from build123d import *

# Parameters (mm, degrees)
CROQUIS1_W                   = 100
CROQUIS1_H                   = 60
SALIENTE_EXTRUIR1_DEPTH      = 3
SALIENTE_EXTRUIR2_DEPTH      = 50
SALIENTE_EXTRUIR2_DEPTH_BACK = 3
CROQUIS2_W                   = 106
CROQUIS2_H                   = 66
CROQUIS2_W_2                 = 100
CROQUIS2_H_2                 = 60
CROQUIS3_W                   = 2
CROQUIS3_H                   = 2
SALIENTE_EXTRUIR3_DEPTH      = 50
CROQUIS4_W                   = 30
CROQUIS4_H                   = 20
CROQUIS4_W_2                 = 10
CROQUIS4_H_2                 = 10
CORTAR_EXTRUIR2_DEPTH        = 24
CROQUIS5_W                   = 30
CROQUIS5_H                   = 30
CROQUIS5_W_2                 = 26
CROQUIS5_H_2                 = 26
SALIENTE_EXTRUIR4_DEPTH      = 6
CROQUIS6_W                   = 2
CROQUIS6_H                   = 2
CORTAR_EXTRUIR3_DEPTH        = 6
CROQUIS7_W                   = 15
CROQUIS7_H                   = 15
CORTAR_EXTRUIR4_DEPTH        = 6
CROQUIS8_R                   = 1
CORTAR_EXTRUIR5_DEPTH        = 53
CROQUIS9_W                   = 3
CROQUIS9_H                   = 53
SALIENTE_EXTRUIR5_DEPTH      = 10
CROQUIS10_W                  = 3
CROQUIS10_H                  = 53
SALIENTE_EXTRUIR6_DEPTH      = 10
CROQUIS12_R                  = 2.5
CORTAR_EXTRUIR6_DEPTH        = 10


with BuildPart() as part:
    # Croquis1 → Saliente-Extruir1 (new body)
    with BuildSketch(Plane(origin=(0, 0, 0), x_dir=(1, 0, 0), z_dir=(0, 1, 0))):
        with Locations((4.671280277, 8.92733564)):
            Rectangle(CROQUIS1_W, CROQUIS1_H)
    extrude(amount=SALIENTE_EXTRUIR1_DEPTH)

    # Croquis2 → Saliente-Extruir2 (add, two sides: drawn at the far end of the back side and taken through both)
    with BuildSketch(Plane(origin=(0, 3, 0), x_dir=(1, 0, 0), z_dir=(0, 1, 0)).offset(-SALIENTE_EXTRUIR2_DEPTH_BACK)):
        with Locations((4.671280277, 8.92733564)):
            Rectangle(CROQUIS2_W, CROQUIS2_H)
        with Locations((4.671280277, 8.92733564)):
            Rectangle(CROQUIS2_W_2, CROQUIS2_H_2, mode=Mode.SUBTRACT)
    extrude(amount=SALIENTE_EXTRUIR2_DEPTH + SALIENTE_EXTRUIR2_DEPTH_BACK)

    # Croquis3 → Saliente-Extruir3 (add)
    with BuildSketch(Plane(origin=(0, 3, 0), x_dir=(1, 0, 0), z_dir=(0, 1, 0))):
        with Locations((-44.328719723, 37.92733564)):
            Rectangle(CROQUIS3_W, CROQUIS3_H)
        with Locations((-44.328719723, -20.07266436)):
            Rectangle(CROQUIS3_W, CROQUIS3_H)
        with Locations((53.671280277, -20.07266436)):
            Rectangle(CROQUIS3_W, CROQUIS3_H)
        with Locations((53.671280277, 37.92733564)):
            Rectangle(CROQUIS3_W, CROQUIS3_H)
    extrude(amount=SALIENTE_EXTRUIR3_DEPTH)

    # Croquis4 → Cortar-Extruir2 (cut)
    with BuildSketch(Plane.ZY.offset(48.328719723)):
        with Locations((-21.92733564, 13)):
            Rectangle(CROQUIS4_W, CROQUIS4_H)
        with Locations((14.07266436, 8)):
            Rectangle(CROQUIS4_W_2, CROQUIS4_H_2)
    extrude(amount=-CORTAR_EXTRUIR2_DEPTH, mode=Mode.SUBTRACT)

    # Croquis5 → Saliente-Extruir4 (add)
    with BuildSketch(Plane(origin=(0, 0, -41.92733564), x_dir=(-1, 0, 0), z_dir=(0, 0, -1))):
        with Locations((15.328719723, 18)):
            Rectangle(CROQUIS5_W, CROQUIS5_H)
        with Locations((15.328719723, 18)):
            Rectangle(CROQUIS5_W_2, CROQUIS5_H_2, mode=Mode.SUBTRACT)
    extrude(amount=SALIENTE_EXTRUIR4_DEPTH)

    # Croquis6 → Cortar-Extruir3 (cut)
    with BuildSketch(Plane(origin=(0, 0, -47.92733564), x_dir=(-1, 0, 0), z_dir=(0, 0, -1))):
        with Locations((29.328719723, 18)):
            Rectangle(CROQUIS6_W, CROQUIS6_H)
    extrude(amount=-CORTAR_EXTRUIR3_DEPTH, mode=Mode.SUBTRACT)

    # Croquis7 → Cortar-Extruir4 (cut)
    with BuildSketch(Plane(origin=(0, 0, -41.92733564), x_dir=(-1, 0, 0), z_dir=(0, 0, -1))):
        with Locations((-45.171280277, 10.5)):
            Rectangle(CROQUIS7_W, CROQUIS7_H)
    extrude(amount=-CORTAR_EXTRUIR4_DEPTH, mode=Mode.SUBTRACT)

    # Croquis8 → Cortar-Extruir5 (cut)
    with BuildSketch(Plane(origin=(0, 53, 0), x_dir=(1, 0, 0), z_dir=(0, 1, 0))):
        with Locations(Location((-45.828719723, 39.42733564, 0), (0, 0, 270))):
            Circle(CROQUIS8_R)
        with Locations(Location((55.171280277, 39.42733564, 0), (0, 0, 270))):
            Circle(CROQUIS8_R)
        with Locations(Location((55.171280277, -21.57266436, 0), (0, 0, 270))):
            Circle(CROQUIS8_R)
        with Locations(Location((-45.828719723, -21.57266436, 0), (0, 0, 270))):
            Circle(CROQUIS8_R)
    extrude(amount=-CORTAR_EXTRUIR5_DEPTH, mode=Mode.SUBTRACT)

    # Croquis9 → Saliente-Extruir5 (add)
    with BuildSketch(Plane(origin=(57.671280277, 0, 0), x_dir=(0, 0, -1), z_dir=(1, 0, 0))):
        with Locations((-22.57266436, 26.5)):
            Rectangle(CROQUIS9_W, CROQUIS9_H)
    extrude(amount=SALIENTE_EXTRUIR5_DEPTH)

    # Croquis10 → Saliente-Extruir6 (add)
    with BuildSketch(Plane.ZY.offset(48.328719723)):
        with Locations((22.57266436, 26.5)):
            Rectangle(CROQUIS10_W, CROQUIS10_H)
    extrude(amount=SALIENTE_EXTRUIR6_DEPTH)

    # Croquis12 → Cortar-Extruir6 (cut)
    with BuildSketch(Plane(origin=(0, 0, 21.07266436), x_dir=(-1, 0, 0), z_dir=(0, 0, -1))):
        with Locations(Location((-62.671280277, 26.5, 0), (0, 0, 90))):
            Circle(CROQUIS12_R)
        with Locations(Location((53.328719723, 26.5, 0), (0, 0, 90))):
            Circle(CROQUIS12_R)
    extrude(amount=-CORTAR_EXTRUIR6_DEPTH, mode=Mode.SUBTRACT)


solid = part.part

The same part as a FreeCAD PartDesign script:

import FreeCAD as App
import Part
import Sketcher

V = App.Vector


def add_polygon(sketch, points):
    """Adds a closed chain of lines whose ends are joined by coincident constraints."""
    first, n = sketch.GeometryCount, len(points)
    for a, b in zip(points, points[1:] + points[:1]):
        sketch.addGeometry(Part.LineSegment(App.Vector(*a, 0), App.Vector(*b, 0)), False)
    for i in range(n):
        sketch.addConstraint(Sketcher.Constraint("Coincident", first + i, 2, first + (i + 1) % n, 1))

doc = App.newDocument("Part")
params = doc.addObject("Spreadsheet::Sheet", "Params")
for row, (alias, value) in enumerate([
    ("sketch1_width", "100 mm"),
    ("sketch1_height", "60 mm"),
    ("pad1_length", "3 mm"),
    ("sketch2_width", "106 mm"),
    ("sketch2_width2", "100 mm"),
    ("sketch2_height", "66 mm"),
    ("sketch2_height2", "60 mm"),
    ("pad2_length", "50 mm"),
    ("pad2_length2", "3 mm"),
    ("sketch3_width", "2 mm"),
    ("pad3_length", "50 mm"),
    ("sketch4_width", "20 mm"),
    ("sketch4_width2", "10 mm"),
    ("sketch4_height", "30 mm"),
    ("pocket1_length", "24 mm"),
    ("sketch5_width", "30 mm"),
    ("sketch5_width2", "26 mm"),
    ("pad4_length", "6 mm"),
    ("sketch6_width", "2 mm"),
    ("pocket2_length", "6 mm"),
    ("sketch7_width", "15 mm"),
    ("pocket3_length", "6 mm"),
    ("sketch8_diameter", "2 mm"),
    ("pocket4_length", "53 mm"),
    ("sketch9_width", "53 mm"),
    ("sketch9_height", "3 mm"),
    ("pad5_length", "10 mm"),
    ("sketch10_width", "53 mm"),
    ("sketch10_height", "3 mm"),
    ("pad6_length", "10 mm"),
    ("sketch11_diameter", "5 mm"),
    ("pocket5_length", "10 mm"),
], start=1):
    params.set(f"A{row}", alias)
    params.set(f"B{row}", "=" + value)
    params.setAlias(f"B{row}", alias)

body = doc.addObject("PartDesign::Body", "Body")

# Sketch on XZ plane
sketch1 = doc.addObject("Sketcher::SketchObject", "Sketch")
body.addObject(sketch1)
sketch1.AttachmentSupport = (doc.XZ_Plane, [""])
sketch1.MapMode = "FlatFace"
add_polygon(sketch1, [(-45, -39), (-45, 21), (55, 21), (55, -39)])  # lines 0-3
sketch1.addConstraint([
    Sketcher.Constraint("Vertical", 0),
    Sketcher.Constraint("Horizontal", 1),
    Sketcher.Constraint("Vertical", 2),
    Sketcher.Constraint("Horizontal", 3),
    Sketcher.Constraint("DistanceX", 1, 1, 1, 2, 100.0),
    Sketcher.Constraint("DistanceY", 0, 1, 0, 2, 60.0),
    Sketcher.Constraint("DistanceX", 0, 2, -1, 1, 45.32872),
    Sketcher.Constraint("DistanceY", -1, 1, 0, 2, 21.072664),
])
sketch1.setExpression("Constraints[8]", "Params.sketch1_width")
sketch1.setExpression("Constraints[9]", "Params.sketch1_height")
pad1 = doc.addObject("PartDesign::Pad", "Pad")
body.addObject(pad1)
pad1.Profile = sketch1
pad1.setExpression("Length", "Params.pad1_length")
pad1.Reversed = True

# Sketch on XZ plane
sketch2 = doc.addObject("Sketcher::SketchObject", "Sketch001")
body.addObject(sketch2)
sketch2.AttachmentSupport = (doc.XZ_Plane, [""])
sketch2.MapMode = "FlatFace"
sketch2.AttachmentOffset = App.Placement(V(0, 0, -3), App.Rotation())
add_polygon(sketch2, [(-48, -42), (-48, 24), (58, 24), (58, -42)])  # lines 0-3
add_polygon(sketch2, [(55, 21), (-45, 21), (-45, -39), (55, -39)])  # lines 4-7
sketch2.addConstraint([
    Sketcher.Constraint("Vertical", 0),
    Sketcher.Constraint("Horizontal", 1),
    Sketcher.Constraint("Vertical", 2),
    Sketcher.Constraint("Horizontal", 3),
    Sketcher.Constraint("Horizontal", 4),
    Sketcher.Constraint("Vertical", 5),
    Sketcher.Constraint("Horizontal", 6),
    Sketcher.Constraint("Vertical", 7),
    Sketcher.Constraint("DistanceX", 1, 1, 1, 2, 106.0),
    Sketcher.Constraint("DistanceX", 4, 2, 4, 1, 100.0),
    Sketcher.Constraint("DistanceY", 0, 1, 0, 2, 66.0),
    Sketcher.Constraint("DistanceY", 5, 2, 5, 1, 60.0),
    Sketcher.Constraint("DistanceX", 0, 2, 4, 2, 3.0),
    Sketcher.Constraint("DistanceY", 4, 2, 0, 2, 3.0),
    Sketcher.Constraint("DistanceX", 0, 2, -1, 1, 48.32872),
    Sketcher.Constraint("DistanceY", -1, 1, 0, 2, 24.072664),
])
sketch2.setExpression("Constraints[16]", "Params.sketch2_width")
sketch2.setExpression("Constraints[17]", "Params.sketch2_width2")
sketch2.setExpression("Constraints[18]", "Params.sketch2_height")
sketch2.setExpression("Constraints[19]", "Params.sketch2_height2")
pad2 = doc.addObject("PartDesign::Pad", "Pad001")
body.addObject(pad2)
pad2.Profile = sketch2
pad2.Type = "TwoLengths"
pad2.setExpression("Length", "Params.pad2_length")
pad2.setExpression("Length2", "Params.pad2_length2")
pad2.Reversed = True

# Sketch on XZ plane
sketch3 = doc.addObject("Sketcher::SketchObject", "Sketch002")
body.addObject(sketch3)
sketch3.AttachmentSupport = (doc.XZ_Plane, [""])
sketch3.MapMode = "FlatFace"
sketch3.AttachmentOffset = App.Placement(V(0, 0, -3), App.Rotation())
add_polygon(sketch3, [(-45.3, -38.9), (-45.3, -36.9), (-43.3, -36.9), (-43.3, -38.9)])  # lines 0-3
add_polygon(sketch3, [(-45.3, 19.1), (-45.3, 21.1), (-43.3, 21.1), (-43.3, 19.1)])  # lines 4-7
add_polygon(sketch3, [(52.7, 19.1), (52.7, 21.1), (54.7, 21.1), (54.7, 19.1)])  # lines 8-11
add_polygon(sketch3, [(52.7, -38.9), (52.7, -36.9), (54.7, -36.9), (54.7, -38.9)])  # lines 12-15
sketch3.addConstraint([
    Sketcher.Constraint("Vertical", 0),
    Sketcher.Constraint("Horizontal", 1),
    Sketcher.Constraint("Vertical", 2),
    Sketcher.Constraint("Horizontal", 3),
    Sketcher.Constraint("Vertical", 4),
    Sketcher.Constraint("Horizontal", 5),
    Sketcher.Constraint("Vertical", 6),
    Sketcher.Constraint("Horizontal", 7),
    Sketcher.Constraint("Vertical", 8),
    Sketcher.Constraint("Horizontal", 9),
    Sketcher.Constraint("Vertical", 10),
    Sketcher.Constraint("Horizontal", 11),
    Sketcher.Constraint("Vertical", 12),
    Sketcher.Constraint("Horizontal", 13),
    Sketcher.Constraint("Vertical", 14),
    Sketcher.Constraint("Horizontal", 15),
    Sketcher.Constraint("Horizontal", 5, 2, 8, 2),
    Sketcher.Constraint("Horizontal", 7, 2, 10, 2),
    Sketcher.Constraint("Horizontal", 1, 2, 12, 2),
    Sketcher.Constraint("Horizontal", 3, 2, 14, 2),
    Sketcher.Constraint("Vertical", 3, 2, 4, 2),
    Sketcher.Constraint("Vertical", 2, 2, 5, 2),
    Sketcher.Constraint("Vertical", 11, 2, 12, 2),
    Sketcher.Constraint("Vertical", 10, 2, 13, 2),
    Sketcher.Constraint("Equal", 7, 9),
    Sketcher.Constraint("Equal", 15, 0),
    Sketcher.Constraint("Equal", 2, 4),
    Sketcher.Constraint("DistanceX", 1, 1, 1, 2, 2.0),
    Sketcher.Constraint("DistanceY", 0, 2, 4, 2, 58.0),
    Sketcher.Constraint("DistanceX", 5, 2, 8, 2, 96.0),
    Sketcher.Constraint("DistanceX", 0, 2, -1, 1, 45.32872),
    Sketcher.Constraint("DistanceY", 0, 2, -1, 1, 36.927336),
])
sketch3.setExpression("Constraints[43]", "Params.sketch3_width")
pad3 = doc.addObject("PartDesign::Pad", "Pad002")
body.addObject(pad3)
pad3.Profile = sketch3
pad3.setExpression("Length", "Params.pad3_length")
pad3.Reversed = True

# Sketch on YZ plane
sketch4 = doc.addObject("Sketcher::SketchObject", "Sketch003")
body.addObject(sketch4)
sketch4.AttachmentSupport = (doc.YZ_Plane, [""])
sketch4.MapMode = "FlatFace"
sketch4.AttachmentOffset = App.Placement(V(0, 0, -48.32872), App.Rotation())
add_polygon(sketch4, [(23, -37), (3, -37), (3, -7), (23, -7)])  # lines 0-3
add_polygon(sketch4, [(13, 9), (3, 9), (3, 19), (13, 19)])  # lines 4-7
sketch4.addConstraint([
    Sketcher.Constraint("Horizontal", 0),
    Sketcher.Constraint("Vertical", 1),
    Sketcher.Constraint("Horizontal", 2),
    Sketcher.Constraint("Vertical", 3),
    Sketcher.Constraint("Horizontal", 4),
    Sketcher.Constraint("Vertical", 5),
    Sketcher.Constraint("Horizontal", 6),
    Sketcher.Constraint("Vertical", 7),
    Sketcher.Constraint("Vertical", 1, 2, 4, 2),
    Sketcher.Constraint("Equal", 6, 5),
    Sketcher.Constraint("DistanceX", 0, 2, 0, 1, 20.0),
    Sketcher.Constraint("DistanceX", 4, 2, 4, 1, 10.0),
    Sketcher.Constraint("DistanceY", 1, 1, 1, 2, 30.0),
    Sketcher.Constraint("DistanceX", -1, 1, 0, 2, 3.0),
    Sketcher.Constraint("DistanceY", 1, 2, 4, 2, 16.0),
    Sketcher.Constraint("DistanceY", 0, 2, -1, 1, 36.927336),
])
sketch4.setExpression("Constraints[18]", "Params.sketch4_width")
sketch4.setExpression("Constraints[19]", "Params.sketch4_width2")
sketch4.setExpression("Constraints[20]", "Params.sketch4_height")
pocket1 = doc.addObject("PartDesign::Pocket", "Pocket")
body.addObject(pocket1)
pocket1.Profile = sketch4
pocket1.setExpression("Length", "Params.pocket1_length")
pocket1.Reversed = True

# Sketch on XY plane
sketch5 = doc.addObject("Sketcher::SketchObject", "Sketch004")
body.addObject(sketch5)
sketch5.AttachmentSupport = (doc.XY_Plane, [""])
sketch5.MapMode = "FlatFace"
sketch5.AttachmentOffset = App.Placement(V(0, 0, -41.927336), App.Rotation())
add_polygon(sketch5, [(0, 33), (0, 3), (-30, 3), (-30, 33)])  # lines 0-3
add_polygon(sketch5, [(-28, 5), (-2, 5), (-2, 31), (-28, 31)])  # lines 4-7
sketch5.addConstraint([
    Sketcher.Constraint("Vertical", 0),
    Sketcher.Constraint("Horizontal", 1),
    Sketcher.Constraint("Vertical", 2),
    Sketcher.Constraint("Horizontal", 3),
    Sketcher.Constraint("Horizontal", 4),
    Sketcher.Constraint("Vertical", 5),
    Sketcher.Constraint("Horizontal", 6),
    Sketcher.Constraint("Vertical", 7),
    Sketcher.Constraint("Equal", 3, 0),
    Sketcher.Constraint("Equal", 6, 5),
    Sketcher.Constraint("DistanceX", 1, 2, 1, 1, 30.0),
    Sketcher.Constraint("DistanceX", 4, 1, 4, 2, 26.0),
    Sketcher.Constraint("DistanceY", -1, 1, 0, 2, 3.0),
    Sketcher.Constraint("DistanceY", -1, 1, 4, 2, 5.0),
    Sketcher.Constraint("DistanceX", 4, 2, 0, 2, 2.0),
    Sketcher.Constraint("DistanceX", 0, 2, -1, 1, 0.32872),
])
sketch5.setExpression("Constraints[18]", "Params.sketch5_width")
sketch5.setExpression("Constraints[19]", "Params.sketch5_width2")
pad4 = doc.addObject("PartDesign::Pad", "Pad003")
body.addObject(pad4)
pad4.Profile = sketch5
pad4.setExpression("Length", "Params.pad4_length")
pad4.Reversed = True

# Sketch on XY plane
sketch6 = doc.addObject("Sketcher::SketchObject", "Sketch005")
body.addObject(sketch6)
sketch6.AttachmentSupport = (doc.XY_Plane, [""])
sketch6.MapMode = "FlatFace"
sketch6.AttachmentOffset = App.Placement(V(0, 0, -47.927336), App.Rotation())
add_polygon(sketch6, [(-28.3, 19), (-28.3, 17), (-30.3, 17), (-30.3, 19)])  # lines 0-3
sketch6.addConstraint([
    Sketcher.Constraint("Vertical", 0),
    Sketcher.Constraint("Horizontal", 1),
    Sketcher.Constraint("Vertical", 2),
    Sketcher.Constraint("Horizontal", 3),
    Sketcher.Constraint("Equal", 3, 0),
    Sketcher.Constraint("DistanceX", 1, 2, 1, 1, 2.0),
    Sketcher.Constraint("DistanceY", -1, 1, 0, 2, 17.0),
    Sketcher.Constraint("DistanceX", 0, 2, -1, 1, 28.32872),
])
sketch6.setExpression("Constraints[9]", "Params.sketch6_width")
pocket2 = doc.addObject("PartDesign::Pocket", "Pocket001")
body.addObject(pocket2)
pocket2.Profile = sketch6
pocket2.setExpression("Length", "Params.pocket2_length")
pocket2.Reversed = True

# Sketch on XY plane
sketch7 = doc.addObject("Sketcher::SketchObject", "Sketch006")
body.addObject(sketch7)
sketch7.AttachmentSupport = (doc.XY_Plane, [""])
sketch7.MapMode = "FlatFace"
sketch7.AttachmentOffset = App.Placement(V(0, 0, -41.927336), App.Rotation())
add_polygon(sketch7, [(53, 18), (53, 3), (38, 3), (38, 18)])  # lines 0-3
sketch7.addConstraint([
    Sketcher.Constraint("Vertical", 0),
    Sketcher.Constraint("Horizontal", 1),
    Sketcher.Constraint("Vertical", 2),
    Sketcher.Constraint("Horizontal", 3),
    Sketcher.Constraint("Equal", 3, 0),
    Sketcher.Constraint("DistanceX", 1, 2, 1, 1, 15.0),
    Sketcher.Constraint("DistanceY", -1, 1, 0, 2, 3.0),
    Sketcher.Constraint("DistanceX", -1, 1, 0, 2, 52.67128),
])
sketch7.setExpression("Constraints[9]", "Params.sketch7_width")
pocket3 = doc.addObject("PartDesign::Pocket", "Pocket002")
body.addObject(pocket3)
pocket3.Profile = sketch7
pocket3.setExpression("Length", "Params.pocket3_length")
pocket3.Reversed = True

# Sketch on XZ plane
sketch8 = doc.addObject("Sketcher::SketchObject", "Sketch007")
body.addObject(sketch8)
sketch8.AttachmentSupport = (doc.XZ_Plane, [""])
sketch8.MapMode = "FlatFace"
sketch8.AttachmentOffset = App.Placement(V(0, 0, -53), App.Rotation())
sketch8.addGeometry([
    Part.Circle(V(-45.8, -39.4, 0), V(0, 0, 1), 1),
    Part.Circle(V(55.2, -39.4, 0), V(0, 0, 1), 1),
    Part.Circle(V(55.2, 21.6, 0), V(0, 0, 1), 1),
    Part.Circle(V(-45.8, 21.6, 0), V(0, 0, 1), 1),
], False)
sketch8.addConstraint([
    Sketcher.Constraint("Equal", 0, 1),
    Sketcher.Constraint("Equal", 1, 2),
    Sketcher.Constraint("Equal", 2, 3),
    Sketcher.Constraint("Horizontal", 0, 3, 1, 3),
    Sketcher.Constraint("Horizontal", 2, 3, 3, 3),
    Sketcher.Constraint("Vertical", 1, 3, 2, 3),
    Sketcher.Constraint("Vertical", 0, 3, 3, 3),
    Sketcher.Constraint("Diameter", 0, 2.0),
    Sketcher.Constraint("DistanceX", 0, 3, 1, 3, 101.0),
    Sketcher.Constraint("DistanceY", 1, 3, 2, 3, 61.0),
    Sketcher.Constraint("DistanceX", 0, 3, -1, 1, 45.82872),
    Sketcher.Constraint("DistanceY", 0, 3, -1, 1, 39.427336),
])
sketch8.setExpression("Constraints[7]", "Params.sketch8_diameter")
pocket4 = doc.addObject("PartDesign::Pocket", "Pocket003")
body.addObject(pocket4)
pocket4.Profile = sketch8
pocket4.setExpression("Length", "Params.pocket4_length")
pocket4.Reversed = True

# Sketch on YZ plane
sketch9 = doc.addObject("Sketcher::SketchObject", "Sketch008")
body.addObject(sketch9)
sketch9.AttachmentSupport = (doc.YZ_Plane, [""])
sketch9.MapMode = "FlatFace"
sketch9.AttachmentOffset = App.Placement(V(0, 0, 57.67128), App.Rotation())
add_polygon(sketch9, [(53, 24.1), (0, 24.1), (0, 21.1), (53, 21.1)])  # lines 0-3
sketch9.addConstraint([
    Sketcher.Constraint("Horizontal", 0),
    Sketcher.Constraint("Vertical", 1),
    Sketcher.Constraint("Horizontal", 2),
    Sketcher.Constraint("Vertical", 3),
    Sketcher.Constraint("PointOnObject", 0, 2, -2),
    Sketcher.Constraint("DistanceX", 0, 2, 0, 1, 53.0),
    Sketcher.Constraint("DistanceY", 1, 2, 1, 1, 3.0),
    Sketcher.Constraint("DistanceY", -1, 1, 0, 2, 24.072664),
])
sketch9.setExpression("Constraints[9]", "Params.sketch9_width")
sketch9.setExpression("Constraints[10]", "Params.sketch9_height")
pad5 = doc.addObject("PartDesign::Pad", "Pad004")
body.addObject(pad5)
pad5.Profile = sketch9
pad5.setExpression("Length", "Params.pad5_length")

# Sketch on YZ plane
sketch10 = doc.addObject("Sketcher::SketchObject", "Sketch009")
body.addObject(sketch10)
sketch10.AttachmentSupport = (doc.YZ_Plane, [""])
sketch10.MapMode = "FlatFace"
sketch10.AttachmentOffset = App.Placement(V(0, 0, -48.32872), App.Rotation())
add_polygon(sketch10, [(53, 21.1), (0, 21.1), (0, 24.1), (53, 24.1)])  # lines 0-3
sketch10.addConstraint([
    Sketcher.Constraint("Horizontal", 0),
    Sketcher.Constraint("Vertical", 1),
    Sketcher.Constraint("Horizontal", 2),
    Sketcher.Constraint("Vertical", 3),
    Sketcher.Constraint("PointOnObject", 0, 2, -2),
    Sketcher.Constraint("DistanceX", 0, 2, 0, 1, 53.0),
    Sketcher.Constraint("DistanceY", 1, 1, 1, 2, 3.0),
    Sketcher.Constraint("DistanceY", -1, 1, 0, 2, 21.072664),
])
sketch10.setExpression("Constraints[9]", "Params.sketch10_width")
sketch10.setExpression("Constraints[10]", "Params.sketch10_height")
pad6 = doc.addObject("PartDesign::Pad", "Pad005")
body.addObject(pad6)
pad6.Profile = sketch10
pad6.setExpression("Length", "Params.pad6_length")
pad6.Reversed = True

# Sketch on XY plane
sketch11 = doc.addObject("Sketcher::SketchObject", "Sketch010")
body.addObject(sketch11)
sketch11.AttachmentSupport = (doc.XY_Plane, [""])
sketch11.MapMode = "FlatFace"
sketch11.AttachmentOffset = App.Placement(V(0, 0, 21.072664), App.Rotation())
sketch11.addGeometry([
    Part.Circle(V(62.7, 26.5, 0), V(0, 0, 1), 2.5),
    Part.Circle(V(-53.3, 26.5, 0), V(0, 0, 1), 2.5),
], False)
sketch11.addConstraint([
    Sketcher.Constraint("Equal", 0, 1),
    Sketcher.Constraint("Horizontal", 0, 3, 1, 3),
    Sketcher.Constraint("Diameter", 0, 5.0),
    Sketcher.Constraint("DistanceX", 1, 3, 0, 3, 116.0),
    Sketcher.Constraint("DistanceY", -1, 1, 0, 3, 26.5),
    Sketcher.Constraint("DistanceX", -1, 1, 0, 3, 62.67128),
])
sketch11.setExpression("Constraints[2]", "Params.sketch11_diameter")
pocket5 = doc.addObject("PartDesign::Pocket", "Pocket004")
body.addObject(pocket5)
pocket5.Profile = sketch11
pocket5.setExpression("Length", "Params.pocket5_length")
pocket5.Reversed = True

doc.recompute()
